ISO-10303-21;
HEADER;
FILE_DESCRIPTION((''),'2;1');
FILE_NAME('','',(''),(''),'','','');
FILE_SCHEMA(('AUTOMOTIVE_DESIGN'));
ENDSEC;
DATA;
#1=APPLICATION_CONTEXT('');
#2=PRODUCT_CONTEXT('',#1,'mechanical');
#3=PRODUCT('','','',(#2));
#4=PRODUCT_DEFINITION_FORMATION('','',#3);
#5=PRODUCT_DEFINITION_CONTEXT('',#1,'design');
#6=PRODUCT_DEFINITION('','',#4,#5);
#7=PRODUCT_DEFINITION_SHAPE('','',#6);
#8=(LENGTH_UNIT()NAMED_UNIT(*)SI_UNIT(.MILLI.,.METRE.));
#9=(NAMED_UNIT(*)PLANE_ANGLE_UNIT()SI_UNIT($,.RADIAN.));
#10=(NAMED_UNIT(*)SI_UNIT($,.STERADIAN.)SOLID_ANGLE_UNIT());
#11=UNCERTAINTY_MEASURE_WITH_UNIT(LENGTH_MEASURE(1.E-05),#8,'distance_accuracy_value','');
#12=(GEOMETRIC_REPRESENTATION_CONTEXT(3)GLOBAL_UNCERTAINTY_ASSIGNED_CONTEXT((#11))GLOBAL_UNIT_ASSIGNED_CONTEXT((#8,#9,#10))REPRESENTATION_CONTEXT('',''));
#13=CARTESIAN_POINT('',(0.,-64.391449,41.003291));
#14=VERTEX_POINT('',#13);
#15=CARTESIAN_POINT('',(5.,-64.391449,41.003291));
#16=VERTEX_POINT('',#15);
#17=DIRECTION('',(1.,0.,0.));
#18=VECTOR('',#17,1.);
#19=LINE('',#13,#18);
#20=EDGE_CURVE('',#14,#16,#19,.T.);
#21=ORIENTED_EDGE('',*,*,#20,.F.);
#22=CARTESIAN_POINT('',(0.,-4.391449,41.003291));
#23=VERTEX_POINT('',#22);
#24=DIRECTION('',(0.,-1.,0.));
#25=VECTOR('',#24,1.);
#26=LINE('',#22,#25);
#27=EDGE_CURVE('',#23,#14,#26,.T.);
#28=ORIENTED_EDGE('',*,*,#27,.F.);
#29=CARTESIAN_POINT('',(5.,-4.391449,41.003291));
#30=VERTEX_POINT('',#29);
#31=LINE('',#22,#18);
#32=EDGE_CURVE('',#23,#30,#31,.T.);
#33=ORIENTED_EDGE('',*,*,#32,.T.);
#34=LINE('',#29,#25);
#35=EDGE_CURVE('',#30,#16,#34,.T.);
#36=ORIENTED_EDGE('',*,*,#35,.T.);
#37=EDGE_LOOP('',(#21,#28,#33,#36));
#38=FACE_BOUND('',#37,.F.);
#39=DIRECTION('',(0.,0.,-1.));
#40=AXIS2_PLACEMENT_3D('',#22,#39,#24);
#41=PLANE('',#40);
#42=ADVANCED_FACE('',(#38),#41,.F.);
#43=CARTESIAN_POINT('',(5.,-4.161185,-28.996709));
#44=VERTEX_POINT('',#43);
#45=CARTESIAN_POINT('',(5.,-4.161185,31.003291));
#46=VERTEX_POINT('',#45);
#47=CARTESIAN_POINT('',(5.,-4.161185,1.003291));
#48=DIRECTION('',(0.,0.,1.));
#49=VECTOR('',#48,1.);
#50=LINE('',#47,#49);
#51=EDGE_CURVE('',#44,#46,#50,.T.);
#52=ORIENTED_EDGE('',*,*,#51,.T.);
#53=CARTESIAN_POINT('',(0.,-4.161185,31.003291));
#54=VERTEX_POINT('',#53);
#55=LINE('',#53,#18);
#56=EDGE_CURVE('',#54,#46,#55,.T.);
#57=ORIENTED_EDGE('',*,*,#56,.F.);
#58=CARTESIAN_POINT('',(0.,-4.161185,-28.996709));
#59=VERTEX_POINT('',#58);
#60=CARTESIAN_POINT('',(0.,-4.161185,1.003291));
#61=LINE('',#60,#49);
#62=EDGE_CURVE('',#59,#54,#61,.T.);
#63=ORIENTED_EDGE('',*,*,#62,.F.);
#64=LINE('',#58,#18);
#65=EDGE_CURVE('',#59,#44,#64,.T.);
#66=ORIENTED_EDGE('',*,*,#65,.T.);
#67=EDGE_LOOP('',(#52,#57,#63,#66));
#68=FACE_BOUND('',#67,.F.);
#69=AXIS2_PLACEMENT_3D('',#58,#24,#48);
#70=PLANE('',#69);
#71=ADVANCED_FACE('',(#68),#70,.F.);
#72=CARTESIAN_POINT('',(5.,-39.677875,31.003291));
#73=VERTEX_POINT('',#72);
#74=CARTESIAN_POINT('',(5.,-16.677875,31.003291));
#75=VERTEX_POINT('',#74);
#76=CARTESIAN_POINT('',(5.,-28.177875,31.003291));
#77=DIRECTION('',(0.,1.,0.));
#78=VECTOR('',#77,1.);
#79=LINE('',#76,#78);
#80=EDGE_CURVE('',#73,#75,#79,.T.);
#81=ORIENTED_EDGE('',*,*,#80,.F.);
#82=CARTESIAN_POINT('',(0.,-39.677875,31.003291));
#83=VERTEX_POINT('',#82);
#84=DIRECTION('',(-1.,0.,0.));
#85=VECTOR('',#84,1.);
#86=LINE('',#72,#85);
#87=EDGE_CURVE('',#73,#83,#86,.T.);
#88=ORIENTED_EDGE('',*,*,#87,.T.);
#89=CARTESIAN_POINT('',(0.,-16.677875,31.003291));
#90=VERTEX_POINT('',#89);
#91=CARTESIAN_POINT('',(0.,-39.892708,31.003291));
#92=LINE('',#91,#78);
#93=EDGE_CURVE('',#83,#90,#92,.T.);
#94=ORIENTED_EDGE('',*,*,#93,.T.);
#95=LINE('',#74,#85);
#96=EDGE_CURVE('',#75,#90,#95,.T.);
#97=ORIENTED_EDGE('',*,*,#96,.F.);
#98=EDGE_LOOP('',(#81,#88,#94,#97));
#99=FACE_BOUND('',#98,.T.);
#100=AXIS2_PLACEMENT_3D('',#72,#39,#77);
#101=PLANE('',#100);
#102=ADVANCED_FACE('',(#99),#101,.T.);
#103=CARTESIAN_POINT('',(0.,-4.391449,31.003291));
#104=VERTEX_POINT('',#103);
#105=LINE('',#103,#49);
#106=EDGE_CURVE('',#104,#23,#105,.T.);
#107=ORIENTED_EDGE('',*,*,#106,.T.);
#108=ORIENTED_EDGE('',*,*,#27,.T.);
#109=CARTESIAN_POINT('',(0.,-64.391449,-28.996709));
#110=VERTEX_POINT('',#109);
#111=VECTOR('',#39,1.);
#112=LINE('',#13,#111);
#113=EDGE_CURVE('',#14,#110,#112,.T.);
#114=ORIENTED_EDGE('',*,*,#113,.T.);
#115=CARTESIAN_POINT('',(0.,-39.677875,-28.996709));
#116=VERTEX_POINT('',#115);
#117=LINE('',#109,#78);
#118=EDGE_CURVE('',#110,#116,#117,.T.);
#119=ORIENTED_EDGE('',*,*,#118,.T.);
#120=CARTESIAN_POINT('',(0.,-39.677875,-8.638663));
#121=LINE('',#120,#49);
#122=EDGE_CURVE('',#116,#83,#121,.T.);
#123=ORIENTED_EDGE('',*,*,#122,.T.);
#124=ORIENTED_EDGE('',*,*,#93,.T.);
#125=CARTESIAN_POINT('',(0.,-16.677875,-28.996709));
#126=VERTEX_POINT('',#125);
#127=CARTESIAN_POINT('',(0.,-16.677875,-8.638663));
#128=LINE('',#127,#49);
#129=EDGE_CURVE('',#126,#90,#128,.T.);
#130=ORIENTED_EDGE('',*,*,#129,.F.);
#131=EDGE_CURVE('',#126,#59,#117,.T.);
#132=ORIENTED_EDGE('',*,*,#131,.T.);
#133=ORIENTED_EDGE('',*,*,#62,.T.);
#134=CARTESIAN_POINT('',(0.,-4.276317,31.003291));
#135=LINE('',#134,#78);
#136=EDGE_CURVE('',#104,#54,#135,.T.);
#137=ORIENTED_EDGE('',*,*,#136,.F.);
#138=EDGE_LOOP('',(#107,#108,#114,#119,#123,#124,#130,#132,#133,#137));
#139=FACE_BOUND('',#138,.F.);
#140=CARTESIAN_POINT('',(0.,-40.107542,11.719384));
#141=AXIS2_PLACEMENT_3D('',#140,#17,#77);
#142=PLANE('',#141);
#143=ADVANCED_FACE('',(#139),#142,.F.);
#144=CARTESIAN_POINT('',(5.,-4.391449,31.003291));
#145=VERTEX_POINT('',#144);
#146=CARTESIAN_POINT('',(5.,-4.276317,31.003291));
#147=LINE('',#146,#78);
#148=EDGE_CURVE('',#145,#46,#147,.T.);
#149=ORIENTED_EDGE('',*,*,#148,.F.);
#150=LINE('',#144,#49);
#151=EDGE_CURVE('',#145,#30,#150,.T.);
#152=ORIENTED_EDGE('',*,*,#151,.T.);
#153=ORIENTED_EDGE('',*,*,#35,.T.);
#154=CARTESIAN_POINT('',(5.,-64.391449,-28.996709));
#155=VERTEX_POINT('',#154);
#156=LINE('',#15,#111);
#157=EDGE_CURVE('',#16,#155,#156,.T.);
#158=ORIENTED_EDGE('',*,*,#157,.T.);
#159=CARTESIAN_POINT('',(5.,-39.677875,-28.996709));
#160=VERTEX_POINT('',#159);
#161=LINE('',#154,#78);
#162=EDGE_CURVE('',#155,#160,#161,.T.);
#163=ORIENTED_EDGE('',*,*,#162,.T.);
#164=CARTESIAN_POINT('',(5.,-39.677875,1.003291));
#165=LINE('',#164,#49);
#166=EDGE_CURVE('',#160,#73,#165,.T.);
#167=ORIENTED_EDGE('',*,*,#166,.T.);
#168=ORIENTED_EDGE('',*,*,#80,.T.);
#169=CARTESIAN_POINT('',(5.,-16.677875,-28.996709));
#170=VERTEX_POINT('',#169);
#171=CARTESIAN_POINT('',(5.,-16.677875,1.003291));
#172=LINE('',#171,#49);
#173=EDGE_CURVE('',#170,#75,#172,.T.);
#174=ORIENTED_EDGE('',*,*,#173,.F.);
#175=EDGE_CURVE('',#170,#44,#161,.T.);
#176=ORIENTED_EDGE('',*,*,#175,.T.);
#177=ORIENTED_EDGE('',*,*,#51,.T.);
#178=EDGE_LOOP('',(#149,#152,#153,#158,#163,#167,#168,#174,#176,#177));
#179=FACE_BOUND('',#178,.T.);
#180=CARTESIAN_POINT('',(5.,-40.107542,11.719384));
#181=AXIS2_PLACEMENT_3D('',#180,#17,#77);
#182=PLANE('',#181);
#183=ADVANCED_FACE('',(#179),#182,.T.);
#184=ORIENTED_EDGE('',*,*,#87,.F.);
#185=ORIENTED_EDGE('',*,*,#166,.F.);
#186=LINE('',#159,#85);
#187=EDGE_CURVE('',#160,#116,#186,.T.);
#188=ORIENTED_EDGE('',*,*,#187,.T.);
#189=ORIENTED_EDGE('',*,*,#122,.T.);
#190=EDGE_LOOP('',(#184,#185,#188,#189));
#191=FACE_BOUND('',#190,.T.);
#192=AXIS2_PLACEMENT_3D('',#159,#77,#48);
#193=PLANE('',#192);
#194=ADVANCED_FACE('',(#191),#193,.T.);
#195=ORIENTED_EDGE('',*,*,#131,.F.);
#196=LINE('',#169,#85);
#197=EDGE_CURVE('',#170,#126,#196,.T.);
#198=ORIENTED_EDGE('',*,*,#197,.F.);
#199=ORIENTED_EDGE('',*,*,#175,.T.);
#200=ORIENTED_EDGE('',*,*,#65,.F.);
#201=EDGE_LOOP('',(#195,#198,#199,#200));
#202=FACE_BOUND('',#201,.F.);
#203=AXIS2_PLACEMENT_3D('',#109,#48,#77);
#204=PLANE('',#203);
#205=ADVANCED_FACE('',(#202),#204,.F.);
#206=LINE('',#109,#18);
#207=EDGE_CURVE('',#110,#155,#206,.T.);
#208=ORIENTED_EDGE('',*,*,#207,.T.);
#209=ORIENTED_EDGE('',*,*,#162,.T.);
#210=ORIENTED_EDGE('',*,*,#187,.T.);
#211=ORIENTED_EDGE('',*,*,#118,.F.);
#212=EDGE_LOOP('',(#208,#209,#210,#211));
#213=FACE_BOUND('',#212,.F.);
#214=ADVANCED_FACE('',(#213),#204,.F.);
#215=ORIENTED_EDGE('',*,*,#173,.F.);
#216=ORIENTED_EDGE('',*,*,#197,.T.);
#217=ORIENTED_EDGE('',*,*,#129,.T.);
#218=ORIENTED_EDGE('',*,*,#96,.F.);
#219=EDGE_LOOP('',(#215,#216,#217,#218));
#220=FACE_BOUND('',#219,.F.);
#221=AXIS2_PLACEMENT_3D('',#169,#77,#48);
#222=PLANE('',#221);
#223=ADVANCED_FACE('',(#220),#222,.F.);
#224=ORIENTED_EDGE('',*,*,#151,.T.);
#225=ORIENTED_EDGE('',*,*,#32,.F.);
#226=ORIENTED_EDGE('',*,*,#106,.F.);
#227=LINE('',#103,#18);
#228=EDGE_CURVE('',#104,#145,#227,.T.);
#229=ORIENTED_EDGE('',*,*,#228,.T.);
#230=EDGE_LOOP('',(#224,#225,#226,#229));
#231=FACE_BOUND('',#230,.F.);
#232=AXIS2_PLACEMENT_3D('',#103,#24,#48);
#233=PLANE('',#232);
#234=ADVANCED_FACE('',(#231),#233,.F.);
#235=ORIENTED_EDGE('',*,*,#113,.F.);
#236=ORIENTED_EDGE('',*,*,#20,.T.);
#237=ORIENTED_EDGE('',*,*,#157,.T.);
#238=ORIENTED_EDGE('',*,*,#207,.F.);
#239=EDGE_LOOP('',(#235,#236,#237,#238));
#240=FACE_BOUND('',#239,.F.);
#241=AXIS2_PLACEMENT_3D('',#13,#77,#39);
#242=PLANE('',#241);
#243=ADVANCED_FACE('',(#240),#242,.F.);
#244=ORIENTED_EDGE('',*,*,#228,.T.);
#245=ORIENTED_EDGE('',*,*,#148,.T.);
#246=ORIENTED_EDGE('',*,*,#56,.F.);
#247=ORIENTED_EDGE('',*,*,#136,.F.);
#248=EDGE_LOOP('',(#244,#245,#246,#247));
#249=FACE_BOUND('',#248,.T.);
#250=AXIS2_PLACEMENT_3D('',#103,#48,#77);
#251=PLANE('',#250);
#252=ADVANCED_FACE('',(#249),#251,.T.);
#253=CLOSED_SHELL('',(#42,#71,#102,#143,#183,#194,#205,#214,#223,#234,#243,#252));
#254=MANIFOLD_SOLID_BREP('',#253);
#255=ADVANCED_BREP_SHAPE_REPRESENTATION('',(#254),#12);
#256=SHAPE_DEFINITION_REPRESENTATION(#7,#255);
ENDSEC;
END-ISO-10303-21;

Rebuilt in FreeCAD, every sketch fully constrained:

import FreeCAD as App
import Part
import Sketcher
from FreeCAD import Vector

doc = App.newDocument("Part")
params = doc.addObject("Spreadsheet::Sheet", "Params")
for row, (alias, value) in enumerate([
    ("sketch1_width", "60 mm"),
    ("sketch1_height", "70 mm"),
    ("pad1_length", "5 mm"),
    ("sketch2_width", "23 mm"),
    ("sketch2_height", "60 mm"),
    ("pocket1_length", "25 mm"),
], start=1):
    params.set(f"A{row}", alias)
    params.set(f"B{row}", "=" + value)
    params.setAlias(f"B{row}", alias)

body = doc.addObject("PartDesign::Body", "Body")

# Sketch on YZ plane
sketch1 = body.newObject("Sketcher::SketchObject", "Sketch")
sketch1.AttachmentSupport = (doc.getObject("YZ_Plane"), [""])
sketch1.MapMode = "FlatFace"
sketch1.addGeometry([
    Part.LineSegment(Vector(-4.39, 41, 0), Vector(-64.39, 41, 0)),  # 0
    Part.LineSegment(Vector(-64.39, 41, 0), Vector(-64.39, -29, 0)),  # 1
    Part.LineSegment(Vector(-64.39, -29, 0), Vector(-4.16, -29, 0)),  # 2
    Part.LineSegment(Vector(-4.16, -29, 0), Vector(-4.16, 31, 0)),  # 3
    Part.LineSegment(Vector(-4.16, 31, 0), Vector(-4.39, 31, 0)),  # 4
    Part.LineSegment(Vector(-4.39, 31, 0), Vector(-4.39, 41, 0)),  # 5
], False)
sketch1.addConstraint([
    Sketcher.Constraint("Coincident", 0, 2, 1, 1),
    Sketcher.Constraint("Coincident", 1, 2, 2, 1),
    Sketcher.Constraint("Coincident", 2, 2, 3, 1),
    Sketcher.Constraint("Coincident", 3, 2, 4, 1),
    Sketcher.Constraint("Coincident", 4, 2, 5, 1),
    Sketcher.Constraint("Coincident", 5, 2, 0, 1),
    Sketcher.Constraint("Horizontal", 0),
    Sketcher.Constraint("Vertical", 1),
    Sketcher.Constraint("Horizontal", 2),
    Sketcher.Constraint("Vertical", 3),
    Sketcher.Constraint("Horizontal", 4),
    Sketcher.Constraint("Vertical", 5),
    Sketcher.Constraint("Equal", 0, 3),
    Sketcher.Constraint("DistanceX", 0, 2, 0, 1, 60.0),
    Sketcher.Constraint("DistanceY", 1, 2, 1, 1, 70.0),
    Sketcher.Constraint("DistanceX", 2, 1, 2, 2, 60.230264),
    Sketcher.Constraint("DistanceX", 0, 2, -1, 1, 64.391449),
    Sketcher.Constraint("DistanceY", -1, 1, 0, 2, 41.003291),
])
sketch1.setExpression("Constraints[13]", "Params.sketch1_width")
sketch1.setExpression("Constraints[14]", "Params.sketch1_height")
pad1 = body.newObject("PartDesign::Pad", "Pad")
pad1.Profile = sketch1
pad1.setExpression("Length", "Params.pad1_length")

# Sketch on YZ plane
sketch2 = body.newObject("Sketcher::SketchObject", "Sketch001")
sketch2.AttachmentSupport = (doc.getObject("YZ_Plane"), [""])
sketch2.MapMode = "FlatFace"
sketch2.AttachmentOffset = App.Placement(Vector(0, 0, 5), App.Rotation())
sketch2.addGeometry([
    Part.LineSegment(Vector(-40, 31, 0), Vector(-40, -29, 0)),
    Part.LineSegment(Vector(-40, -29, 0), Vector(-17, -29, 0)),
    Part.LineSegment(Vector(-17, -29, 0), Vector(-17, 31, 0)),
    Part.LineSegment(Vector(-17, 31, 0), Vector(-40, 31, 0)),
], False)
sketch2.addConstraint([
    Sketcher.Constraint("Coincident", 0, 2, 1, 1),
    Sketcher.Constraint("Coincident", 1, 2, 2, 1),
    Sketcher.Constraint("Coincident", 2, 2, 3, 1),
    Sketcher.Constraint("Coincident", 3, 2, 0, 1),
    Sketcher.Constraint("Vertical", 0),
    Sketcher.Constraint("Horizontal", 1),
    Sketcher.Constraint("Vertical", 2),
    Sketcher.Constraint("Horizontal", 3),
    Sketcher.Constraint("DistanceX", 1, 1, 1, 2, 23.0),
    Sketcher.Constraint("DistanceY", 0, 2, 0, 1, 60.0),
    Sketcher.Constraint("DistanceY", 0, 2, -1, 1, 28.996709),
    Sketcher.Constraint("DistanceX", 0, 2, -1, 1, 39.677875),
])
sketch2.setExpression("Constraints[8]", "Params.sketch2_width")
sketch2.setExpression("Constraints[9]", "Params.sketch2_height")
pocket1 = body.newObject("PartDesign::Pocket", "Pocket")
pocket1.Profile = sketch2
pocket1.setExpression("Length", "Params.pocket1_length")

doc.recompute()
